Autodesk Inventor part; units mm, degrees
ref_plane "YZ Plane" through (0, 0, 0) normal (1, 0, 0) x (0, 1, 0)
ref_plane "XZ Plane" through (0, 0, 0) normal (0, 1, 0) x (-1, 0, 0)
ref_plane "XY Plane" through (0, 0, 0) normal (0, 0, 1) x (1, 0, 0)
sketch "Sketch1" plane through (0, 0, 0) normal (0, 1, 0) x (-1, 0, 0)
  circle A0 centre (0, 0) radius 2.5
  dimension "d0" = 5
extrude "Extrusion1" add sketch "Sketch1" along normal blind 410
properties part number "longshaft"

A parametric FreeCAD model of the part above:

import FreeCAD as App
import Part
import Sketcher

doc = App.newDocument("Part")
body = doc.addObject("PartDesign::Body", "Body")

# Sketch on XZ plane
sketch1 = body.newObject("Sketcher::SketchObject", "Sketch")
sketch1.AttachmentSupport = (doc.getObject("XZ_Plane"), [""])
sketch1.MapMode = "FlatFace"
sketch1.addGeometry(Part.Circle(App.Vector(0, 0, 0), App.Vector(0, 0, 1), 2.5), False)
sketch1.addConstraint([
    Sketcher.Constraint("Coincident", 0, 3, -1, 1),
    Sketcher.Constraint("Diameter", 0, 5.0),
])
pad1 = body.newObject("PartDesign::Pad", "Pad")
pad1.Profile = sketch1
pad1.Length = 410
pad1.Reversed = True

doc.recompute()
